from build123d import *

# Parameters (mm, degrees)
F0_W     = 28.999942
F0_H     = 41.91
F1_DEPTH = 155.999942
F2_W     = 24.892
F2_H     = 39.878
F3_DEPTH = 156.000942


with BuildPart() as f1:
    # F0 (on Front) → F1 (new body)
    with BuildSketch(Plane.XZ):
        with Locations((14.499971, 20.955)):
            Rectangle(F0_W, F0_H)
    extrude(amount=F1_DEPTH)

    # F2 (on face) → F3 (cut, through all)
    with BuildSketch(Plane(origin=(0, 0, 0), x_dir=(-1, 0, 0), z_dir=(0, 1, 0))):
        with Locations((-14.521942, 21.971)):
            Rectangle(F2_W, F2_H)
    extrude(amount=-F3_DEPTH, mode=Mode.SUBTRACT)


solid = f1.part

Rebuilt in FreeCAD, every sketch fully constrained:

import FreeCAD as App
import Part
import Sketcher
Q = App.Units.Quantity

doc = App.newDocument("Part")
params = doc.addObject("Spreadsheet::Sheet", "Params")
for row, (alias, value) in enumerate([
    ("sketch1_height", "1.65 in"),
    ("pad1_length", "155.999942 mm"),
    ("sketch2_width", "0.98 in"),
    ("sketch2_height", "1.57 in"),
], start=1):
    params.set(f"A{row}", alias)
    params.set(f"B{row}", "=" + value)
    params.setAlias(f"B{row}", alias)

body = doc.addObject("PartDesign::Body", "Body")

# Sketch on XZ plane
sketch1 = body.newObject("Sketcher::SketchObject", "Sketch")
sketch1.AttachmentSupport = (doc.getObject("XZ_Plane"), [""])
sketch1.MapMode = "FlatFace"
sketch1.addGeometry([
    Part.LineSegment(App.Vector(0, 42, 0), App.Vector(0, 0, 0)),
    Part.LineSegment(App.Vector(0, 0, 0), App.Vector(29, 0, 0)),
    Part.LineSegment(App.Vector(29, 0, 0), App.Vector(29, 42, 0)),
    Part.LineSegment(App.Vector(29, 42, 0), App.Vector(0, 42, 0)),
], False)
sketch1.addConstraint([
    Sketcher.Constraint("Coincident", 0, 2, 1, 1),
    Sketcher.Constraint("Coincident", 1, 2, 2, 1),
    Sketcher.Constraint("Coincident", 2, 2, 3, 1),
    Sketcher.Constraint("Coincident", 3, 2, 0, 1),
    Sketcher.Constraint("Vertical", 0),
    Sketcher.Constraint("Horizontal", 1),
    Sketcher.Constraint("Vertical", 2),
    Sketcher.Constraint("Horizontal", 3),
    Sketcher.Constraint("Coincident", 0, 2, -1, 1),
    Sketcher.Constraint("DistanceY", 0, 2, 0, 1, Q("1.65 in")),
    Sketcher.Constraint("DistanceX", 1, 1, 1, 2, Q("28.999942 mm")),
])
sketch1.setExpression("Constraints[9]", "Params.sketch1_height")
pad1 = body.newObject("PartDesign::Pad", "Pad")
pad1.Profile = sketch1
pad1.setExpression("Length", "Params.pad1_length")

# Sketch on XZ plane
sketch2 = body.newObject("Sketcher::SketchObject", "Sketch001")
sketch2.AttachmentSupport = (doc.getObject("XZ_Plane"), [""])
sketch2.MapMode = "FlatFace"
sketch2.addGeometry([
    Part.LineSegment(App.Vector(27, 42, 0), App.Vector(27, 2, 0)),
    Part.LineSegment(App.Vector(27, 2, 0), App.Vector(2, 2, 0)),
    Part.LineSegment(App.Vector(2, 2, 0), App.Vector(2, 42, 0)),
    Part.LineSegment(App.Vector(2, 42, 0), App.Vector(27, 42, 0)),
], False)
sketch2.addConstraint([
    Sketcher.Constraint("Coincident", 0, 2, 1, 1),
    Sketcher.Constraint("Coincident", 1, 2, 2, 1),
    Sketcher.Constraint("Coincident", 2, 2, 3, 1),
    Sketcher.Constraint("Coincident", 3, 2, 0, 1),
    Sketcher.Constraint("Vertical", 0),
    Sketcher.Constraint("Horizontal", 1),
    Sketcher.Constraint("Vertical", 2),
    Sketcher.Constraint("Horizontal", 3),
    Sketcher.Constraint("DistanceX", 1, 2, 1, 1, Q("0.98 in")),
    Sketcher.Constraint("DistanceY", 0, 2, 0, 1, Q("1.57 in")),
    Sketcher.Constraint("DistanceY", -1, 1, 0, 2, Q("0.08 in")),
    Sketcher.Constraint("DistanceX", -1, 1, 1, 2, Q("2.075942 mm")),
])
sketch2.setExpression("Constraints[8]", "Params.sketch2_width")
sketch2.setExpression("Constraints[9]", "Params.sketch2_height")
pocket1 = body.newObject("PartDesign::Pocket", "Pocket")
pocket1.Profile = sketch2
pocket1.Type = "ThroughAll"
pocket1.Reversed = True

doc.recompute()
